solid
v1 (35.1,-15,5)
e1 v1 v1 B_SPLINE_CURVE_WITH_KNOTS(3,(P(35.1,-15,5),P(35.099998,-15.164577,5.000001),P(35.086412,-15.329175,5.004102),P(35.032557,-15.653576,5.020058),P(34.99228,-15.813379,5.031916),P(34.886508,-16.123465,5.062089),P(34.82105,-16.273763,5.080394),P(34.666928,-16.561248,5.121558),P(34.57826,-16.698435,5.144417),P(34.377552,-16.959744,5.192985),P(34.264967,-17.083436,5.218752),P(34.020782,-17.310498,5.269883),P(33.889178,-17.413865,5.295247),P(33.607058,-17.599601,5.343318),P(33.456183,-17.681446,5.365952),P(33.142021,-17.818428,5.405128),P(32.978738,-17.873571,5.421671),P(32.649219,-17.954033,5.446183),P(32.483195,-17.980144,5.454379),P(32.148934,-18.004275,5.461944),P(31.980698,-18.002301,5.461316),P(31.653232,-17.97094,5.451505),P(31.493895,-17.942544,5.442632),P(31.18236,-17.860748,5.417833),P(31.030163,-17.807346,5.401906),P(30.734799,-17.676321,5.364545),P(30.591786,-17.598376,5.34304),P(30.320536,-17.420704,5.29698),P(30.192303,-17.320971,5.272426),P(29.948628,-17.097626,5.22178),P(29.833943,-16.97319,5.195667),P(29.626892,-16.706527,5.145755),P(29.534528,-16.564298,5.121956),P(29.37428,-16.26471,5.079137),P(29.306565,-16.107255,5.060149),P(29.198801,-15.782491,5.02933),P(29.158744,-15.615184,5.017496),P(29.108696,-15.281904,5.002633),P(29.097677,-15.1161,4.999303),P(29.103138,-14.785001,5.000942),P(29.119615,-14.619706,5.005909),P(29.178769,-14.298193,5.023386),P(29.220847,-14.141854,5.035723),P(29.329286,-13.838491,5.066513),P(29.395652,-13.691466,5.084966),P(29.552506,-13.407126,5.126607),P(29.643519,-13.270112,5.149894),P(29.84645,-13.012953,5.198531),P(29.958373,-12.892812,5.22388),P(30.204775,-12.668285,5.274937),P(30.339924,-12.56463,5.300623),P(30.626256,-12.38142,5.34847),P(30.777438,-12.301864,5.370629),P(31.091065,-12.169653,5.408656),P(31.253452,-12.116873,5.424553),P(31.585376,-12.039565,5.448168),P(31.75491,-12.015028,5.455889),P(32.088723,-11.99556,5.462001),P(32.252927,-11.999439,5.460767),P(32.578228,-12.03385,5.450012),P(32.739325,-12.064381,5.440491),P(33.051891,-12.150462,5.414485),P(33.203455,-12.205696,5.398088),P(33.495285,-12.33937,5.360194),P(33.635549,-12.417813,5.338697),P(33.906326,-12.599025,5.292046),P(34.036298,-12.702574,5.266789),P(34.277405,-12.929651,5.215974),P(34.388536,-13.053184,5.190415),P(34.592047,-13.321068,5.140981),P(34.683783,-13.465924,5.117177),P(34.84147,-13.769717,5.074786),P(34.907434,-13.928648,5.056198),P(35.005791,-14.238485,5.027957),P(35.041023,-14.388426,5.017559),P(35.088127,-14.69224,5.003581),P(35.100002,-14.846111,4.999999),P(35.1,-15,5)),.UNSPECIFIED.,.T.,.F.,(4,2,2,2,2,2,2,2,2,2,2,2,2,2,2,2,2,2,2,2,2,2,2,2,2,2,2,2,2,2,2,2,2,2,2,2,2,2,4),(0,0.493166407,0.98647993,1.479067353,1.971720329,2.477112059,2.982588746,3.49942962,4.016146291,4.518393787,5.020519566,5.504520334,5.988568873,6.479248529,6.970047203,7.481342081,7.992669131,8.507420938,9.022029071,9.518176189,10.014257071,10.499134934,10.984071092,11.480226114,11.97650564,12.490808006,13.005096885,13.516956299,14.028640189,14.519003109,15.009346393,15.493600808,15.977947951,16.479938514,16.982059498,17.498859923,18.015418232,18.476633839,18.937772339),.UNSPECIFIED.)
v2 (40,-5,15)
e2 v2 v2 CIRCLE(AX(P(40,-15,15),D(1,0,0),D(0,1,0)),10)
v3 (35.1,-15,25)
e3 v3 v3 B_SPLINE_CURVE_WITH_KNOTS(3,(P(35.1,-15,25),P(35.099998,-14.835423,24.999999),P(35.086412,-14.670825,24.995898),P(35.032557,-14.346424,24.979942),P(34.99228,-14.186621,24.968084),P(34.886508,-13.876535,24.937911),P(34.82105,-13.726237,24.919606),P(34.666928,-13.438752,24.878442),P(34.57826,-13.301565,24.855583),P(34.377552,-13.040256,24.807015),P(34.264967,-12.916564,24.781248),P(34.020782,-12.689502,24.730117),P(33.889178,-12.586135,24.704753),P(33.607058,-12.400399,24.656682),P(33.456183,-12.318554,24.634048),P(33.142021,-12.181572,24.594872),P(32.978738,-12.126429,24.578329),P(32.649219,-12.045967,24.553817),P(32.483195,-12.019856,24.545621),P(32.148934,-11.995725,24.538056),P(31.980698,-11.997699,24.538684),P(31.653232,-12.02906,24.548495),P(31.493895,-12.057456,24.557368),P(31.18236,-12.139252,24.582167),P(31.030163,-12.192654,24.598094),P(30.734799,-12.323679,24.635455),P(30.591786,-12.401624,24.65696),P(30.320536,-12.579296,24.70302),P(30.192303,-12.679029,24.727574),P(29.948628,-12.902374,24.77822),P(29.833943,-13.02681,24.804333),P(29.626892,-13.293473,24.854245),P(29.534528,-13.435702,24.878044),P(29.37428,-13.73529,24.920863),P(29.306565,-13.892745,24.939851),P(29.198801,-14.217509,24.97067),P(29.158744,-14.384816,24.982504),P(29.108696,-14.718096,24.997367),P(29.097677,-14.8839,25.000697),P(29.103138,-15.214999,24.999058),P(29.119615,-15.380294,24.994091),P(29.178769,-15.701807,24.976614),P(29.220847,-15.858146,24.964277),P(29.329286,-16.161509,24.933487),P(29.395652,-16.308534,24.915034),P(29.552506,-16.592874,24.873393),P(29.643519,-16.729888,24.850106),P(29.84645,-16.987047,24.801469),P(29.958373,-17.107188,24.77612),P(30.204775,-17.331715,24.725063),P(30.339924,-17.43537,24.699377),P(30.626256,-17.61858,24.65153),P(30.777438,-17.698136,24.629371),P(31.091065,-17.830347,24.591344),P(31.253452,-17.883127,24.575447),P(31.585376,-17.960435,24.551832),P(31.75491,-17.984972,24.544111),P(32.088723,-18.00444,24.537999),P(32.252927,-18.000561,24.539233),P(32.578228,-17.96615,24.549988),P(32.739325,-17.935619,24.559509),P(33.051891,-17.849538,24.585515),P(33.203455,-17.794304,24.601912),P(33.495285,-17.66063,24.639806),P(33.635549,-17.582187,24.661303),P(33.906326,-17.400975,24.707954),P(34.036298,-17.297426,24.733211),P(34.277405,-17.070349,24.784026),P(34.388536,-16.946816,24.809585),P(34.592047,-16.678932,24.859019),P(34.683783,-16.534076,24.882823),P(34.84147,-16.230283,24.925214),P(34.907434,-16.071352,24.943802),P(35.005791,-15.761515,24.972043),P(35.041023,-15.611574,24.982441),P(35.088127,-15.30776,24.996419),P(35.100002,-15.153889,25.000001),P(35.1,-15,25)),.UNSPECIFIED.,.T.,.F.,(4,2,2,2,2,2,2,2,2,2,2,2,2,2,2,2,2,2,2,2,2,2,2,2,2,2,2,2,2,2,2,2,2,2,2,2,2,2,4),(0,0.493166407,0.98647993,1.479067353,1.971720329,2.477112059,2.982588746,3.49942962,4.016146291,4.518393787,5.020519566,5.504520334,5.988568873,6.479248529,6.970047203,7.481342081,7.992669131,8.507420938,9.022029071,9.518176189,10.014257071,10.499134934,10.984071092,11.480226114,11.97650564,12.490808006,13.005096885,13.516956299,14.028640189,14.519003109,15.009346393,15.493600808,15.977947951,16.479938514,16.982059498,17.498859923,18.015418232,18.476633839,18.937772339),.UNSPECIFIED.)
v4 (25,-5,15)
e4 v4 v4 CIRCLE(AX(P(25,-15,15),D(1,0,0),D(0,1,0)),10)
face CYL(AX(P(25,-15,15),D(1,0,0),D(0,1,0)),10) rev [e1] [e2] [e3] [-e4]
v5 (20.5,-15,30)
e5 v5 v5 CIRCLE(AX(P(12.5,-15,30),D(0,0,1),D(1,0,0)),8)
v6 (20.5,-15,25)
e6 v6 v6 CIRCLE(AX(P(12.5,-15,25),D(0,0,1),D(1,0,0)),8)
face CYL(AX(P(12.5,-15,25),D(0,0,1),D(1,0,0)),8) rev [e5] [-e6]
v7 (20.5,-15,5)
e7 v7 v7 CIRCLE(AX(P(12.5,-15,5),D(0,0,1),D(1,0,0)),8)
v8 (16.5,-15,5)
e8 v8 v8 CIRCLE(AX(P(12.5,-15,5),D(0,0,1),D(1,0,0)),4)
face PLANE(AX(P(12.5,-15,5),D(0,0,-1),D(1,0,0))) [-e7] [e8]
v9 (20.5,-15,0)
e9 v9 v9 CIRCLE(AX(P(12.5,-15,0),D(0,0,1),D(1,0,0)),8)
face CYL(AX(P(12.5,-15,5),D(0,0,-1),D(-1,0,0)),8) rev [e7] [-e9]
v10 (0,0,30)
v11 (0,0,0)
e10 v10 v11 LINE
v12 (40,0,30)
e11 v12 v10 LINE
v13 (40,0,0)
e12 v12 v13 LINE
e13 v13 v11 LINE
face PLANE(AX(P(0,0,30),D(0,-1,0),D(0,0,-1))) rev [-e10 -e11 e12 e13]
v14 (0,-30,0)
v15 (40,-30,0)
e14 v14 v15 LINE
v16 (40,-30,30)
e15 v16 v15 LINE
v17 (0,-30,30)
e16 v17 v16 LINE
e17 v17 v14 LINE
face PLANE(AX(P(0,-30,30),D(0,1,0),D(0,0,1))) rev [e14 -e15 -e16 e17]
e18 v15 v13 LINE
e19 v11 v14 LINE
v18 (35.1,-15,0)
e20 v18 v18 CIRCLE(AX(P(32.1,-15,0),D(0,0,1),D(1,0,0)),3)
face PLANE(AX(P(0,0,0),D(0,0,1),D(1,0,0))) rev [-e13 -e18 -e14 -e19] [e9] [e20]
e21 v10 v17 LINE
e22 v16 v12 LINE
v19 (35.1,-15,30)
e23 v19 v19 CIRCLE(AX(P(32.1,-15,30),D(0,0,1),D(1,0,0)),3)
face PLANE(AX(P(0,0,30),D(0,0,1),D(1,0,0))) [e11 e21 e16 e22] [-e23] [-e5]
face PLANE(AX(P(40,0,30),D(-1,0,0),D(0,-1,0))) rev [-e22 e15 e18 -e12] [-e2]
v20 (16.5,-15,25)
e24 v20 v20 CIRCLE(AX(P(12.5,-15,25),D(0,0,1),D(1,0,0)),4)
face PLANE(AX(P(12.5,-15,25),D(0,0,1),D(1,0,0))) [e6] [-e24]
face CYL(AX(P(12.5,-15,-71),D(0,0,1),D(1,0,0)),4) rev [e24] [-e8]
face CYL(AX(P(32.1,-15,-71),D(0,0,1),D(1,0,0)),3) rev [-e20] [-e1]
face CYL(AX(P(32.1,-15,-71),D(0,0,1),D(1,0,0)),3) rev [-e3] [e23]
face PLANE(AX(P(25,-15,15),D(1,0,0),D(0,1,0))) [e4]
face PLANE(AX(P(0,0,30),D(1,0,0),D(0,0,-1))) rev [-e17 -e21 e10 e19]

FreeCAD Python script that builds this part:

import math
import FreeCAD as App
import Part
import Sketcher
Q = App.Units.Quantity

doc = App.newDocument("Part")
params = doc.addObject("Spreadsheet::Sheet", "Params")
for row, (alias, value) in enumerate([
    ("sketch1_width", "40 mm"),
    ("sketch1_height", "30 mm"),
    ("pad1_length", "30 mm"),
    ("sketch2_diameter", "20 mm"),
    ("pocket1_length", "15 mm"),
    ("sketch3_diameter", "16 mm"),
    ("sketch3_diameter2", "8 mm"),
    ("pocket2_length", "5 mm"),
    ("sketch4_radius", "4 mm"),
    ("pocket3_length", "101 mm"),
    ("sketch5_diameter", "6 mm"),
    ("pocket4_length", "101 mm"),
], start=1):
    params.set(f"A{row}", alias)
    params.set(f"B{row}", "=" + value)
    params.setAlias(f"B{row}", alias)

body = doc.addObject("PartDesign::Body", "Body")

sketch1 = doc.addObject("Sketcher::SketchObject", "Sketch")
body.addObject(sketch1)
sketch1.AttachmentSupport = (doc.XY_Plane, [""])
sketch1.MapMode = "FlatFace"
sketch1.addGeometry(Part.LineSegment(App.Vector(0, 0, 0), App.Vector(0, -30, 0)), False)
sketch1.addGeometry(Part.LineSegment(App.Vector(0, -30, 0), App.Vector(40, -30, 0)), False)
sketch1.addGeometry(Part.LineSegment(App.Vector(40, -30, 0), App.Vector(40, 0, 0)), False)
sketch1.addGeometry(Part.LineSegment(App.Vector(40, 0, 0), App.Vector(0, 0, 0)), False)
sketch1.addConstraint(Sketcher.Constraint("Coincident", 0, 2, 1, 1))
sketch1.addConstraint(Sketcher.Constraint("Coincident", 1, 2, 2, 1))
sketch1.addConstraint(Sketcher.Constraint("Coincident", 2, 2, 3, 1))
sketch1.addConstraint(Sketcher.Constraint("Coincident", 3, 2, 0, 1))
sketch1.addConstraint(Sketcher.Constraint("Vertical", 0))
sketch1.addConstraint(Sketcher.Constraint("Horizontal", 1))
sketch1.addConstraint(Sketcher.Constraint("Vertical", 2))
sketch1.addConstraint(Sketcher.Constraint("Horizontal", 3))
sketch1.addConstraint(Sketcher.Constraint("Coincident", 3, 2, -1, 1))
sketch1.addConstraint(Sketcher.Constraint("DistanceX", 1, 1, 1, 2, Q("40 mm")))
sketch1.addConstraint(Sketcher.Constraint("DistanceY", 0, 2, 0, 1, Q("30 mm")))
sketch1.setExpression("Constraints[9]", "Params.sketch1_width")
sketch1.setExpression("Constraints[10]", "Params.sketch1_height")
pad1 = doc.addObject("PartDesign::Pad", "Pad")
body.addObject(pad1)
pad1.Profile = sketch1
pad1.setExpression("Length", "Params.pad1_length")

sketch2 = doc.addObject("Sketcher::SketchObject", "Sketch001")
body.addObject(sketch2)
sketch2.AttachmentSupport = (doc.YZ_Plane, [""])
sketch2.MapMode = "FlatFace"
sketch2.AttachmentOffset = App.Placement(App.Vector(0, 0, 40), App.Rotation())
sketch2.addGeometry(Part.Circle(App.Vector(-15, 15, 0), App.Vector(0, 0, 1), 10), False)
sketch2.addConstraint(Sketcher.Constraint("Diameter", 0, Q("20 mm")))
sketch2.addConstraint(Sketcher.Constraint("DistanceX", 0, 3, -1, 1, Q("15 mm")))
sketch2.addConstraint(Sketcher.Constraint("DistanceY", -1, 1, 0, 3, Q("15 mm")))
sketch2.setExpression("Constraints[0]", "Params.sketch2_diameter")
pocket1 = doc.addObject("PartDesign::Pocket", "Pocket")
body.addObject(pocket1)
pocket1.Profile = sketch2
pocket1.setExpression("Length", "Params.pocket1_length")

sketch3 = doc.addObject("Sketcher::SketchObject", "Sketch002")
body.addObject(sketch3)
sketch3.AttachmentSupport = (doc.XY_Plane, [""])
sketch3.MapMode = "FlatFace"
sketch3.AttachmentOffset = App.Placement(App.Vector(0, 0, 30), App.Rotation())
sketch3.addGeometry(Part.Circle(App.Vector(12.5, -15, 0), App.Vector(0, 0, 1), 8), False)
sketch3.addGeometry(Part.Circle(App.Vector(12.5, -15, 0), App.Vector(0, 0, 1), 4), False)
sketch3.addConstraint(Sketcher.Constraint("Coincident", 1, 3, 0, 3))
sketch3.addConstraint(Sketcher.Constraint("Diameter", 0, Q("16 mm")))
sketch3.addConstraint(Sketcher.Constraint("Diameter", 1, Q("8 mm")))
sketch3.addConstraint(Sketcher.Constraint("DistanceY", 0, 3, -1, 1, Q("15 mm")))
sketch3.addConstraint(Sketcher.Constraint("DistanceX", -1, 1, 0, 3, Q("12.5 mm")))
sketch3.setExpression("Constraints[1]", "Params.sketch3_diameter")
sketch3.setExpression("Constraints[2]", "Params.sketch3_diameter2")
pocket2 = doc.addObject("PartDesign::Pocket", "Pocket001")
body.addObject(pocket2)
pocket2.Profile = sketch3
pocket2.setExpression("Length", "Params.pocket2_length")

sketch4 = doc.addObject("Sketcher::SketchObject", "Sketch003")
body.addObject(sketch4)
sketch4.AttachmentSupport = (doc.XY_Plane, [""])
sketch4.MapMode = "FlatFace"
sketch4.AttachmentOffset = App.Placement(App.Vector(0, 0, 30), App.Rotation())
sketch4.addGeometry(Part.ArcOfCircle(Part.Circle(App.Vector(12.5, -15, 0), App.Vector(0, 0, 1), 4), math.radians(0), math.radians(130)), False)
sketch4.addGeometry(Part.ArcOfCircle(Part.Circle(App.Vector(12.5, -15, 0), App.Vector(0, 0, 1), 4), math.radians(130), math.radians(310)), False)
sketch4.addGeometry(Part.ArcOfCircle(Part.Circle(App.Vector(12.5, -15, 0), App.Vector(0, 0, 1), 4), math.radians(-50), math.radians(0)), False)
sketch4.addConstraint(Sketcher.Constraint("Tangent", 0, 2, 1, 1))
sketch4.addConstraint(Sketcher.Constraint("Tangent", 1, 2, 2, 1))
sketch4.addConstraint(Sketcher.Constraint("Tangent", 2, 2, 0, 1))
sketch4.addConstraint(Sketcher.Constraint("Horizontal", 1, 3, 2, 2))
sketch4.addConstraint(Sketcher.Constraint("Radius", 0, Q("4 mm")))
sketch4.addConstraint(Sketcher.Constraint("DistanceY", 0, 3, -1, 1, Q("15 mm")))
sketch4.addConstraint(Sketcher.Constraint("DistanceX", -1, 1, 0, 3, Q("12.5 mm")))
sketch4.addConstraint(Sketcher.Constraint("DistanceY", 1, 2, 0, 2, Q("6.14577 mm")))
sketch4.addConstraint(Sketcher.Constraint("DistanceX", -1, 1, 0, 2, Q("9.939262 mm")))
sketch4.setExpression("Constraints[4]", "Params.sketch4_radius")
pocket3 = doc.addObject("PartDesign::Pocket", "Pocket002")
body.addObject(pocket3)
pocket3.Profile = sketch4
pocket3.setExpression("Length", "Params.pocket3_length")

sketch5 = doc.addObject("Sketcher::SketchObject", "Sketch004")
body.addObject(sketch5)
sketch5.AttachmentSupport = (doc.XY_Plane, [""])
sketch5.MapMode = "FlatFace"
sketch5.AttachmentOffset = App.Placement(App.Vector(0, 0, 30), App.Rotation())
sketch5.addGeometry(Part.Circle(App.Vector(32.1, -15, 0), App.Vector(0, 0, 1), 3), False)
sketch5.addConstraint(Sketcher.Constraint("Diameter", 0, Q("6 mm")))
sketch5.addConstraint(Sketcher.Constraint("DistanceY", 0, 3, -1, 1, Q("15 mm")))
sketch5.addConstraint(Sketcher.Constraint("DistanceX", -1, 1, 0, 3, Q("32.1 mm")))
sketch5.setExpression("Constraints[0]", "Params.sketch5_diameter")
pocket4 = doc.addObject("PartDesign::Pocket", "Pocket003")
body.addObject(pocket4)
pocket4.Profile = sketch5
pocket4.setExpression("Length", "Params.pocket4_length")
doc.recompute()

datumplane = doc.addObject("PartDesign::Plane", "DatumPlane")
body.addObject(datumplane)
datumplane.AttachmentSupport = (doc.XY_Plane, [""])
datumplane.MapMode = "FlatFace"
datumplane.AttachmentOffset = App.Placement(App.Vector(0, 0, 15), App.Rotation())
mirrored = doc.addObject("PartDesign::Mirrored", "Mirrored")
body.addObject(mirrored)
mirrored.Originals = [pocket2]
mirrored.MirrorPlane = (datumplane, [""])
body.Tip = mirrored

doc.recompute()
